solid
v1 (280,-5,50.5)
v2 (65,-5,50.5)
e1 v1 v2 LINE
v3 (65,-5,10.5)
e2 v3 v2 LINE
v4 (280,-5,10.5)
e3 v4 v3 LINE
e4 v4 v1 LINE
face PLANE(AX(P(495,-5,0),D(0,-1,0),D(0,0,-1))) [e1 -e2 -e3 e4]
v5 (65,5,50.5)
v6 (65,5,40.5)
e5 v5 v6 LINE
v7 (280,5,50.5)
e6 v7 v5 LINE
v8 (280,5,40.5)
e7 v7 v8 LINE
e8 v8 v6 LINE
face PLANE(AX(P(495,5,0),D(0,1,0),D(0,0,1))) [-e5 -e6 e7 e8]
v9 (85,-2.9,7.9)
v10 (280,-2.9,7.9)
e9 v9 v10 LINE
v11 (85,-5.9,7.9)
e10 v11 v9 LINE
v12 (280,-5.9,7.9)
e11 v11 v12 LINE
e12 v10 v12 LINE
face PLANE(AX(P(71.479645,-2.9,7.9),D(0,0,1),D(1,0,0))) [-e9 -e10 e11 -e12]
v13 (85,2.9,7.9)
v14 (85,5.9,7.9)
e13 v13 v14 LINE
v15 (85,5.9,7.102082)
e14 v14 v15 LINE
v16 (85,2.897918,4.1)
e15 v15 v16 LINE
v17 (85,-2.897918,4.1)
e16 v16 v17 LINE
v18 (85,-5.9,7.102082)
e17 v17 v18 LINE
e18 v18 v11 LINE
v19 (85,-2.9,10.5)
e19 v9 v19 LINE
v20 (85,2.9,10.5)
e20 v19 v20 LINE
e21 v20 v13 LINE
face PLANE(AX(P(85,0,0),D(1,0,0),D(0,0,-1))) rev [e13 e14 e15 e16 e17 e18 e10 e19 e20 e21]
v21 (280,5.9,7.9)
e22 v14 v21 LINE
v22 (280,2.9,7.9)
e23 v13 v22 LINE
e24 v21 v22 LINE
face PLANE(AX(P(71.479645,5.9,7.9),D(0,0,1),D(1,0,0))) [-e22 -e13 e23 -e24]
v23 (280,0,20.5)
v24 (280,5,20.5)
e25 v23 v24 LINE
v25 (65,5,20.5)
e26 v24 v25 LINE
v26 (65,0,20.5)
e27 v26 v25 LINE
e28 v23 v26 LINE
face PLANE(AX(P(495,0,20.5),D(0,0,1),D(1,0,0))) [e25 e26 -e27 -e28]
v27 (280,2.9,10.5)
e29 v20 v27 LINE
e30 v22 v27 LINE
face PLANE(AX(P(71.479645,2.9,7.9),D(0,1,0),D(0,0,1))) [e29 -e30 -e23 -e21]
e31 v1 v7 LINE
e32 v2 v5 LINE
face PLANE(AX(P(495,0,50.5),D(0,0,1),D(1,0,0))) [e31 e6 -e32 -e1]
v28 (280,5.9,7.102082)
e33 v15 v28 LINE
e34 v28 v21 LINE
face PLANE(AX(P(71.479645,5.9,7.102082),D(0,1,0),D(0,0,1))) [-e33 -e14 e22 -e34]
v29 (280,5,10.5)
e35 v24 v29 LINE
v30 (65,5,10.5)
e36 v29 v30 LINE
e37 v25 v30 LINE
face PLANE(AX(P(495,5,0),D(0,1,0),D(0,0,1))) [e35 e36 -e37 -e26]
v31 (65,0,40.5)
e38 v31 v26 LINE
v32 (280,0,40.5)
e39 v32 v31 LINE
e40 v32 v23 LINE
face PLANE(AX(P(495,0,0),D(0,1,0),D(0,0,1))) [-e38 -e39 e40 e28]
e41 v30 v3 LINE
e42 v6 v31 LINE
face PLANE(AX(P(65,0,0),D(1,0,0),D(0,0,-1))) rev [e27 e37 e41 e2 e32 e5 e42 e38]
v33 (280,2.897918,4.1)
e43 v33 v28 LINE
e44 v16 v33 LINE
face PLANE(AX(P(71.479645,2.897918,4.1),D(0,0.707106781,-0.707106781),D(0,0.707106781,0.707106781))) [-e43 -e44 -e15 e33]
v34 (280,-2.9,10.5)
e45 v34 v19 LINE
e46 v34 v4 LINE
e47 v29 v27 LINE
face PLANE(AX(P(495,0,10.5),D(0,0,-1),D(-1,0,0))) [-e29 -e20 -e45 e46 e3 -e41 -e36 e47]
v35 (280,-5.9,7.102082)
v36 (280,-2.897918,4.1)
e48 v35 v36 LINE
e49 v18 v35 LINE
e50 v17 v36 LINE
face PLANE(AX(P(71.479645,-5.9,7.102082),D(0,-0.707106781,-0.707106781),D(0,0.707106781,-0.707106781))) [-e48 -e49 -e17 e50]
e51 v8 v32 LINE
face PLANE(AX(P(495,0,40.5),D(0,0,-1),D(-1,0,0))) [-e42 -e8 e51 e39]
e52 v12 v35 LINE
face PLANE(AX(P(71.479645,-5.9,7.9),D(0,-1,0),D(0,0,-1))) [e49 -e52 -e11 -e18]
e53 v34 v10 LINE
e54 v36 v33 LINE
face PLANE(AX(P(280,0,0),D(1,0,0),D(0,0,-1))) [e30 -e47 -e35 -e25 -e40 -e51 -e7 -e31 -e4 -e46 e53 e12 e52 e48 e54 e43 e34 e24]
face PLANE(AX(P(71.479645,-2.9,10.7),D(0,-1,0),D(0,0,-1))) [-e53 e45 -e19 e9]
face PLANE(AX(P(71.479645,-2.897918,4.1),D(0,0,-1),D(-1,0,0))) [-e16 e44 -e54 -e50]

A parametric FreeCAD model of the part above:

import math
import FreeCAD as App
import Part
import Sketcher

V = App.Vector


def add_polygon(sketch, points):
    """Adds a closed chain of lines whose ends are joined by coincident constraints."""
    first, n = sketch.GeometryCount, len(points)
    for a, b in zip(points, points[1:] + points[:1]):
        sketch.addGeometry(Part.LineSegment(App.Vector(*a, 0), App.Vector(*b, 0)), False)
    for i in range(n):
        sketch.addConstraint(Sketcher.Constraint("Coincident", first + i, 2, first + (i + 1) % n, 1))

doc = App.newDocument("Part")
body = doc.addObject("PartDesign::Body", "Body")

sketch1 = doc.addObject("Sketcher::SketchObject", "Sketch")
body.addObject(sketch1)
sketch1.AttachmentSupport = (doc.YZ_Plane, [""])
sketch1.MapMode = "FlatFace"
sketch1.addGeometry([
    Part.LineSegment(V(9, 10, 0), V(3, 10, 0)),
    Part.LineSegment(V(3, 10, 0), V(3, 8, 0)),
    Part.LineSegment(V(3, 8, 0), V(6, 8, 0)),
    Part.LineSegment(V(6, 8, 0), V(6, 7.1, 0)),
    Part.LineSegment(V(6, 7.1, 0), V(2.9, 4, 0)),
    Part.LineSegment(V(2.9, 4, 0), V(-2.9, 4, 0)),
    Part.LineSegment(V(-2.9, 4, 0), V(-6, 7.1, 0)),
    Part.LineSegment(V(-6, 7.1, 0), V(-6, 8, 0)),
    Part.LineSegment(V(-6, 8, 0), V(-3, 8, 0)),
    Part.LineSegment(V(-3, 8, 0), V(-3, 10, 0)),
    Part.LineSegment(V(-3, 10, 0), V(-9, 10, 0)),
    Part.ArcOfCircle(Part.Circle(V(-9, 9, 0), V(0, 0, 1), 1), math.radians(90), math.radians(180)),
    Part.LineSegment(V(-10, 9, 0), V(-10, 3, 0)),
    Part.LineSegment(V(-10, 3, 0), V(-8, 3, 0)),
    Part.LineSegment(V(-8, 3, 0), V(-8, 6, 0)),
    Part.LineSegment(V(-8, 6, 0), V(-7.1, 6, 0)),
    Part.LineSegment(V(-7.1, 6, 0), V(-4, 2.9, 0)),
    Part.LineSegment(V(-4, 2.9, 0), V(-4, -2.9, 0)),
    Part.LineSegment(V(-4, -2.9, 0), V(-7.1, -6, 0)),
    Part.LineSegment(V(-7.1, -6, 0), V(-8, -6, 0)),
    Part.LineSegment(V(-8, -6, 0), V(-8, -3, 0)),
    Part.LineSegment(V(-8, -3, 0), V(-10, -3, 0)),
    Part.LineSegment(V(-10, -3, 0), V(-10, -9, 0)),
    Part.ArcOfCircle(Part.Circle(V(-9, -9, 0), V(0, 0, 1), 1), math.radians(-180), math.radians(-90)),
    Part.LineSegment(V(-9, -10, 0), V(-3, -10, 0)),
    Part.LineSegment(V(-3, -10, 0), V(-3, -8, 0)),
    Part.LineSegment(V(-3, -8, 0), V(-6, -8, 0)),
    Part.LineSegment(V(-6, -8, 0), V(-6, -7.1, 0)),
    Part.LineSegment(V(-6, -7.1, 0), V(-2.9, -4, 0)),
    Part.LineSegment(V(-2.9, -4, 0), V(2.9, -4, 0)),
    Part.LineSegment(V(2.9, -4, 0), V(6, -7.1, 0)),
    Part.LineSegment(V(6, -7.1, 0), V(6, -8, 0)),
    Part.LineSegment(V(6, -8, 0), V(3, -8, 0)),
    Part.LineSegment(V(3, -8, 0), V(3, -10, 0)),
    Part.LineSegment(V(3, -10, 0), V(9, -10, 0)),
    Part.ArcOfCircle(Part.Circle(V(9, -9, 0), V(0, 0, 1), 1), math.radians(-90), math.radians(0)),
    Part.LineSegment(V(10, -9, 0), V(10, -3, 0)),
    Part.LineSegment(V(10, -3, 0), V(8, -3, 0)),
    Part.LineSegment(V(8, -3, 0), V(8, -6, 0)),
    Part.LineSegment(V(8, -6, 0), V(7.1, -6, 0)),
    Part.LineSegment(V(7.1, -6, 0), V(4, -2.9, 0)),
    Part.LineSegment(V(4, -2.9, 0), V(4, 2.9, 0)),
    Part.LineSegment(V(4, 2.9, 0), V(7.1, 6, 0)),
    Part.LineSegment(V(7.1, 6, 0), V(8, 6, 0)),
    Part.LineSegment(V(8, 6, 0), V(8, 3, 0)),
    Part.LineSegment(V(8, 3, 0), V(10, 3, 0)),
    Part.LineSegment(V(10, 3, 0), V(10, 9, 0)),
    Part.ArcOfCircle(Part.Circle(V(9, 9, 0), V(0, 0, 1), 1), math.radians(0), math.radians(90)),
    Part.Circle(V(0, 0, 0), V(0, 0, 1), 2.1),
], False)
sketch1.addConstraint([
    Sketcher.Constraint("Coincident", 0, 2, 1, 1),
    Sketcher.Constraint("Coincident", 1, 2, 2, 1),
    Sketcher.Constraint("Coincident", 2, 2, 3, 1),
    Sketcher.Constraint("Coincident", 3, 2, 4, 1),
    Sketcher.Constraint("Coincident", 4, 2, 5, 1),
    Sketcher.Constraint("Coincident", 5, 2, 6, 1),
    Sketcher.Constraint("Coincident", 6, 2, 7, 1),
    Sketcher.Constraint("Coincident", 7, 2, 8, 1),
    Sketcher.Constraint("Coincident", 8, 2, 9, 1),
    Sketcher.Constraint("Coincident", 9, 2, 10, 1),
    Sketcher.Constraint("Tangent", 10, 2, 11, 1),
    Sketcher.Constraint("Tangent", 11, 2, 12, 1),
    Sketcher.Constraint("Coincident", 12, 2, 13, 1),
    Sketcher.Constraint("Coincident", 13, 2, 14, 1),
    Sketcher.Constraint("Coincident", 14, 2, 15, 1),
    Sketcher.Constraint("Coincident", 15, 2, 16, 1),
    Sketcher.Constraint("Coincident", 16, 2, 17, 1),
    Sketcher.Constraint("Coincident", 17, 2, 18, 1),
    Sketcher.Constraint("Coincident", 18, 2, 19, 1),
    Sketcher.Constraint("Coincident", 19, 2, 20, 1),
    Sketcher.Constraint("Coincident", 20, 2, 21, 1),
    Sketcher.Constraint("Coincident", 21, 2, 22, 1),
    Sketcher.Constraint("Tangent", 22, 2, 23, 1),
    Sketcher.Constraint("Tangent", 23, 2, 24, 1),
    Sketcher.Constraint("Coincident", 24, 2, 25, 1),
    Sketcher.Constraint("Coincident", 25, 2, 26, 1),
    Sketcher.Constraint("Coincident", 26, 2, 27, 1),
    Sketcher.Constraint("Coincident", 27, 2, 28, 1),
    Sketcher.Constraint("Coincident", 28, 2, 29, 1),
    Sketcher.Constraint("Coincident", 29, 2, 30, 1),
    Sketcher.Constraint("Coincident", 30, 2, 31, 1),
    Sketcher.Constraint("Coincident", 31, 2, 32, 1),
    Sketcher.Constraint("Coincident", 32, 2, 33, 1),
    Sketcher.Constraint("Coincident", 33, 2, 34, 1),
    Sketcher.Constraint("Tangent", 34, 2, 35, 1),
    Sketcher.Constraint("Tangent", 35, 2, 36, 1),
    Sketcher.Constraint("Coincident", 36, 2, 37, 1),
    Sketcher.Constraint("Coincident", 37, 2, 38, 1),
    Sketcher.Constraint("Coincident", 38, 2, 39, 1),
    Sketcher.Constraint("Coincident", 39, 2, 40, 1),
    Sketcher.Constraint("Coincident", 40, 2, 41, 1),
    Sketcher.Constraint("Coincident", 41, 2, 42, 1),
    Sketcher.Constraint("Coincident", 42, 2, 43, 1),
    Sketcher.Constraint("Coincident", 43, 2, 44, 1),
    Sketcher.Constraint("Coincident", 44, 2, 45, 1),
    Sketcher.Constraint("Coincident", 45, 2, 46, 1),
    Sketcher.Constraint("Tangent", 46, 2, 47, 1),
    Sketcher.Constraint("Tangent", 47, 2, 0, 1),
    Sketcher.Constraint("Horizontal", 0),
    Sketcher.Constraint("Vertical", 1),
    Sketcher.Constraint("Horizontal", 2),
    Sketcher.Constraint("Vertical", 3),
    Sketcher.Constraint("Horizontal", 5),
    Sketcher.Constraint("Vertical", 7),
    Sketcher.Constraint("Horizontal", 8),
    Sketcher.Constraint("Vertical", 9),
    Sketcher.Constraint("Horizontal", 10),
    Sketcher.Constraint("Vertical", 12),
    Sketcher.Constraint("Horizontal", 13),
    Sketcher.Constraint("Vertical", 14),
    Sketcher.Constraint("Horizontal", 15),
    Sketcher.Constraint("Vertical", 17),
    Sketcher.Constraint("Horizontal", 19),
    Sketcher.Constraint("Vertical", 20),
    Sketcher.Constraint("Horizontal", 21),
    Sketcher.Constraint("Vertical", 22),
    Sketcher.Constraint("Horizontal", 24),
    Sketcher.Constraint("Vertical", 25),
    Sketcher.Constraint("Horizontal", 26),
    Sketcher.Constraint("Vertical", 27),
    Sketcher.Constraint("Horizontal", 29),
    Sketcher.Constraint("Vertical", 31),
    Sketcher.Constraint("Horizontal", 32),
    Sketcher.Constraint("Vertical", 33),
    Sketcher.Constraint("Horizontal", 34),
    Sketcher.Constraint("Vertical", 36),
    Sketcher.Constraint("Horizontal", 37),
    Sketcher.Constraint("Vertical", 38),
    Sketcher.Constraint("Horizontal", 39),
    Sketcher.Constraint("Vertical", 41),
    Sketcher.Constraint("Horizontal", 43),
    Sketcher.Constraint("Vertical", 44),
    Sketcher.Constraint("Horizontal", 45),
    Sketcher.Constraint("Vertical", 46),
    Sketcher.Constraint("Coincident", 48, 3, -1, 1),
    Sketcher.Constraint("Equal", 11, 23),
    Sketcher.Constraint("Equal", 23, 35),
    Sketcher.Constraint("Equal", 35, 47),
    Sketcher.Constraint("Symmetric", 11, 3, 35, 3, -1, 1),
    Sketcher.Constraint("Symmetric", 23, 3, 47, 3, -1, 1),
    Sketcher.Constraint("Symmetric", 1, 2, 25, 2, -1, 1),
    Sketcher.Constraint("Symmetric", 3, 2, 27, 2, -1, 1),
    Sketcher.Constraint("Symmetric", 4, 2, 28, 2, -1, 1),
    Sketcher.Constraint("Symmetric", 6, 2, 30, 2, -1, 1),
    Sketcher.Constraint("Symmetric", 8, 2, 32, 2, -1, 1),
    Sketcher.Constraint("Symmetric", 13, 2, 37, 2, -1, 1),
    Sketcher.Constraint("Symmetric", 15, 2, 39, 2, -1, 1),
    Sketcher.Constraint("Symmetric", 16, 2, 40, 2, -1, 1),
    Sketcher.Constraint("Symmetric", 18, 2, 42, 2, -1, 1),
    Sketcher.Constraint("Symmetric", 20, 2, 44, 2, -1, 1),
    Sketcher.Constraint("Symmetric", 23, 3, 35, 3, -2),
    Sketcher.Constraint("Symmetric", 3, 2, 6, 2, -2),
    Sketcher.Constraint("Symmetric", 1, 2, 8, 2, -2),
    Sketcher.Constraint("Symmetric", 20, 2, 37, 2, -2),
    Sketcher.Constraint("Symmetric", 18, 2, 39, 2, -2),
    Sketcher.Constraint("Perpendicular", 4, 6),
    Sketcher.Constraint("Parallel", 6, 16),
    Sketcher.Constraint("Perpendicular", 16, 18),
    Sketcher.Constraint("Perpendicular", 28, 30),
    Sketcher.Constraint("Perpendicular", 40, 42),
    Sketcher.Constraint("Horizontal", 17, 2, 40, 2),
    Sketcher.Constraint("Equal", 45, 1),
    Sketcher.Constraint("Equal", 43, 3),
    Sketcher.Constraint("Equal", 34, 12),
    Sketcher.Constraint("Equal", 32, 14),
    Sketcher.Constraint("Equal", 29, 17),
    Sketcher.Constraint("Equal", 6, 16),
    Sketcher.Constraint("Radius", 11, 1.0),
    Sketcher.Constraint("Diameter", 48, 4.2),
    Sketcher.Constraint("DistanceX", 0, 2, 0, 1, 6.0),
    Sketcher.Constraint("DistanceX", 2, 1, 2, 2, 3.0),
    Sketcher.Constraint("DistanceX", 13, 1, 13, 2, 2.0),
    Sketcher.Constraint("DistanceX", 11, 3, -1, 1, 9.0),
    Sketcher.Constraint("DistanceY", -1, 1, 4, 2, 4.0),
    Sketcher.Constraint("DistanceX", 5, 2, 5, 1, 5.87868),
])
pad1 = doc.addObject("PartDesign::Pad", "Pad")
body.addObject(pad1)
pad1.Profile = sketch1
pad1.Length = 65

sketch2 = doc.addObject("Sketcher::SketchObject", "Sketch001")
body.addObject(sketch2)
sketch2.AttachmentSupport = (doc.YZ_Plane, [""])
sketch2.MapMode = "FlatFace"
sketch2.AttachmentOffset = App.Placement(V(0, 0, 65), App.Rotation())
add_polygon(sketch2, [(13, 12), (-14, 12), (-14, -14), (13, -14)])
sketch2.addConstraint([
    Sketcher.Constraint("Horizontal", 0),
    Sketcher.Constraint("Vertical", 1),
    Sketcher.Constraint("Horizontal", 2),
    Sketcher.Constraint("Vertical", 3),
    Sketcher.Constraint("DistanceX", 0, 2, 0, 1, 26.977421),
    Sketcher.Constraint("DistanceY", 1, 2, 1, 1, 26.589814),
    Sketcher.Constraint("DistanceY", 1, 2, -1, 1, 14.471229),
    Sketcher.Constraint("DistanceX", 0, 2, -1, 1, 14.303638),
])
pocket1 = doc.addObject("PartDesign::Pocket", "Pocket")
body.addObject(pocket1)
pocket1.Profile = sketch2
pocket1.Type = "ThroughAll"
body2 = doc.addObject("PartDesign::Body", "Body001")

sketch3 = doc.addObject("Sketcher::SketchObject", "Sketch002")
body2.addObject(sketch3)
sketch3.AttachmentSupport = (doc.getObject("YZ_Plane001"), [""])
sketch3.MapMode = "FlatFace"
sketch3.AttachmentOffset = App.Placement(V(0, 0, 65), App.Rotation())
add_polygon(sketch3, [(2.7, 10.5), (5, 10.5), (5, 20.5), (0, 20.5), (0, 40.5), (5, 40.5), (5, 50.5), (-5, 50.5), (-5, 10.5), (-2.7, 10.5), (-2.7, 7.7), (-5.7, 7.7), (-5.7, 7.2), (-2.8, 4.3), (2.8, 4.3), (5.7, 7.2), (5.7, 7.7), (2.7, 7.7)])
sketch3.addConstraint([
    Sketcher.Constraint("Horizontal", 0),
    Sketcher.Constraint("Vertical", 1),
    Sketcher.Constraint("Horizontal", 2),
    Sketcher.Constraint("Vertical", 3),
    Sketcher.Constraint("Horizontal", 4),
    Sketcher.Constraint("Vertical", 5),
    Sketcher.Constraint("Horizontal", 6),
    Sketcher.Constraint("Vertical", 7),
    Sketcher.Constraint("Horizontal", 8),
    Sketcher.Constraint("Vertical", 9),
    Sketcher.Constraint("Horizontal", 10),
    Sketcher.Constraint("Vertical", 11),
    Sketcher.Constraint("Horizontal", 13),
    Sketcher.Constraint("Vertical", 15),
    Sketcher.Constraint("Horizontal", 16),
    Sketcher.Constraint("Vertical", 17),
    Sketcher.Constraint("Symmetric", 0, 2, 7, 2, -2),
    Sketcher.Constraint("Symmetric", 11, 2, 14, 2, -2),
    Sketcher.Constraint("Symmetric", 9, 2, 16, 2, -2),
    Sketcher.Constraint("PointOnObject", 2, 2, -2),
    Sketcher.Constraint("Perpendicular", 12, 14),
    Sketcher.Constraint("Vertical", 1, 2, 4, 2),
    Sketcher.Constraint("Equal", 6, 1),
    Sketcher.Constraint("Equal", 1, 5),
    Sketcher.Constraint("Equal", 12, 14),
    Sketcher.Constraint("DistanceX", 2, 2, 2, 1, 5.0),
    Sketcher.Constraint("DistanceX", 10, 2, 10, 1, 3.0),
    Sketcher.Constraint("DistanceY", 3, 1, 3, 2, 20.0),
    Sketcher.Constraint("DistanceX", 0, 1, 0, 2, 2.3),
    Sketcher.Constraint("DistanceY", 9, 2, 9, 1, 2.8),
    Sketcher.Constraint("DistanceY", -1, 1, 0, 2, 10.5),
    Sketcher.Constraint("DistanceY", -1, 1, 12, 2, 4.3),
    Sketcher.Constraint("Distance", 12, 4.079899),
])
pad2 = doc.addObject("PartDesign::Pad", "Pad001")
body2.addObject(pad2)
pad2.Profile = sketch3
pad2.Length = 430

sketch4 = doc.addObject("Sketcher::SketchObject", "Sketch003")
body2.addObject(sketch4)
sketch4.AttachmentSupport = (doc.getObject("YZ_Plane001"), [""])
sketch4.MapMode = "FlatFace"
sketch4.AttachmentOffset = App.Placement(V(0, 0, 65), App.Rotation())
add_polygon(sketch4, [(8, 0), (-8, 0), (-8, 10), (8, 10)])
sketch4.addConstraint([
    Sketcher.Constraint("Horizontal", 0),
    Sketcher.Constraint("Vertical", 1),
    Sketcher.Constraint("Horizontal", 2),
    Sketcher.Constraint("Vertical", 3),
    Sketcher.Constraint("PointOnObject", 0, 2, -1),
    Sketcher.Constraint("DistanceY", 1, 1, 1, 2, 10.5),
    Sketcher.Constraint("DistanceX", 0, 2, 0, 1, 16.6705),
    Sketcher.Constraint("DistanceX", 0, 2, -1, 1, 8.452324),
])
pocket2 = doc.addObject("PartDesign::Pocket", "Pocket001")
body2.addObject(pocket2)
pocket2.Profile = sketch4
pocket2.Length = 20
pocket2.Reversed = True

sketch5 = doc.addObject("Sketcher::SketchObject", "Sketch004")
body2.addObject(sketch5)
sketch5.AttachmentSupport = (doc.getObject("YZ_Plane001"), [""])
sketch5.MapMode = "FlatFace"
sketch5.AttachmentOffset = App.Placement(V(0, 0, 495), App.Rotation())
add_polygon(sketch5, [(14, 61), (-13, 61), (-13, -3), (14, -3)])
sketch5.addConstraint([
    Sketcher.Constraint("Horizontal", 0),
    Sketcher.Constraint("Vertical", 1),
    Sketcher.Constraint("Horizontal", 2),
    Sketcher.Constraint("Vertical", 3),
    Sketcher.Constraint("DistanceX", 0, 2, 0, 1, 27.18497),
    Sketcher.Constraint("DistanceY", 1, 2, 1, 1, 63.871976),
    Sketcher.Constraint("DistanceX", 0, 2, -1, 1, 13.150689),
    Sketcher.Constraint("DistanceY", -1, 1, 0, 2, 61.21607),
])
pocket3 = doc.addObject("PartDesign::Pocket", "Pocket002")
body2.addObject(pocket3)
pocket3.Profile = sketch5
pocket3.Length = 215

sketch6 = doc.addObject("Sketcher::SketchObject", "Sketch005")
body2.addObject(sketch6)
sketch6.AttachmentSupport = (doc.getObject("YZ_Plane001"), [""])
sketch6.MapMode = "FlatFace"
sketch6.AttachmentOffset = App.Placement(V(0, 0, 280), App.Rotation())
add_polygon(sketch6, [(2.9, 10.7), (-2.9, 10.7), (-2.9, 7.9), (-5.9, 7.9), (-5.9, 7.1), (-2.9, 4.1), (2.9, 4.1), (5.9, 7.1), (5.9, 7.9), (2.9, 7.9)])
add_polygon(sketch6, [(-2.7, 10.5), (2.7, 10.5), (2.7, 7.7), (5.7, 7.7), (5.7, 7.2), (2.8, 4.3), (-2.8, 4.3), (-5.7, 7.2), (-5.7, 7.7), (-2.7, 7.7)])
sketch6.addConstraint([
    Sketcher.Constraint("Horizontal", 0),
    Sketcher.Constraint("Vertical", 1),
    Sketcher.Constraint("Horizontal", 2),
    Sketcher.Constraint("Vertical", 3),
    Sketcher.Constraint("Horizontal", 5),
    Sketcher.Constraint("Vertical", 7),
    Sketcher.Constraint("Horizontal", 8),
    Sketcher.Constraint("Vertical", 9),
    Sketcher.Constraint("Horizontal", 10),
    Sketcher.Constraint("Vertical", 11),
    Sketcher.Constraint("Horizontal", 12),
    Sketcher.Constraint("Vertical", 13),
    Sketcher.Constraint("Horizontal", 15),
    Sketcher.Constraint("Vertical", 17),
    Sketcher.Constraint("Horizontal", 18),
    Sketcher.Constraint("Vertical", 19),
    Sketcher.Constraint("Symmetric", 3, 2, 6, 2, -2),
    Sketcher.Constraint("Symmetric", 1, 2, 8, 2, -2),
    Sketcher.Constraint("Symmetric", 13, 2, 16, 2, -2),
    Sketcher.Constraint("Symmetric", 11, 2, 18, 2, -2),
    Sketcher.Constraint("Perpendicular", 4, 6),
    Sketcher.Constraint("Parallel", 6, 14),
    Sketcher.Constraint("Perpendicular", 14, 16),
    Sketcher.Constraint("Equal", 8, 12),
    Sketcher.Constraint("Equal", 9, 11),
    Sketcher.Constraint("Equal", 4, 6),
    Sketcher.Constraint("DistanceX", 2, 2, 2, 1, 3.0),
    Sketcher.Constraint("DistanceX", 0, 2, 0, 1, 5.8),
    Sketcher.Constraint("DistanceX", 10, 1, 10, 2, 5.4),
    Sketcher.Constraint("DistanceY", 1, 2, 1, 1, 2.8),
    Sketcher.Constraint("DistanceY", 11, 2, 9, 2, 3.0),
    Sketcher.Constraint("DistanceY", -1, 1, 0, 2, 10.7),
    Sketcher.Constraint("DistanceY", -1, 1, 4, 2, 4.1),
    Sketcher.Constraint("DistanceY", -1, 1, 14, 2, 4.3),
    Sketcher.Constraint("Distance", 14, 4.079899),
    Sketcher.Constraint("DistanceY", 3, 2, 3, 1, 0.797918),
])
pad3 = doc.addObject("PartDesign::Pad", "Pad002")
body2.addObject(pad3)
pad3.Profile = sketch6
pad3.Length = 195
pad3.Reversed = True

doc.recompute()
